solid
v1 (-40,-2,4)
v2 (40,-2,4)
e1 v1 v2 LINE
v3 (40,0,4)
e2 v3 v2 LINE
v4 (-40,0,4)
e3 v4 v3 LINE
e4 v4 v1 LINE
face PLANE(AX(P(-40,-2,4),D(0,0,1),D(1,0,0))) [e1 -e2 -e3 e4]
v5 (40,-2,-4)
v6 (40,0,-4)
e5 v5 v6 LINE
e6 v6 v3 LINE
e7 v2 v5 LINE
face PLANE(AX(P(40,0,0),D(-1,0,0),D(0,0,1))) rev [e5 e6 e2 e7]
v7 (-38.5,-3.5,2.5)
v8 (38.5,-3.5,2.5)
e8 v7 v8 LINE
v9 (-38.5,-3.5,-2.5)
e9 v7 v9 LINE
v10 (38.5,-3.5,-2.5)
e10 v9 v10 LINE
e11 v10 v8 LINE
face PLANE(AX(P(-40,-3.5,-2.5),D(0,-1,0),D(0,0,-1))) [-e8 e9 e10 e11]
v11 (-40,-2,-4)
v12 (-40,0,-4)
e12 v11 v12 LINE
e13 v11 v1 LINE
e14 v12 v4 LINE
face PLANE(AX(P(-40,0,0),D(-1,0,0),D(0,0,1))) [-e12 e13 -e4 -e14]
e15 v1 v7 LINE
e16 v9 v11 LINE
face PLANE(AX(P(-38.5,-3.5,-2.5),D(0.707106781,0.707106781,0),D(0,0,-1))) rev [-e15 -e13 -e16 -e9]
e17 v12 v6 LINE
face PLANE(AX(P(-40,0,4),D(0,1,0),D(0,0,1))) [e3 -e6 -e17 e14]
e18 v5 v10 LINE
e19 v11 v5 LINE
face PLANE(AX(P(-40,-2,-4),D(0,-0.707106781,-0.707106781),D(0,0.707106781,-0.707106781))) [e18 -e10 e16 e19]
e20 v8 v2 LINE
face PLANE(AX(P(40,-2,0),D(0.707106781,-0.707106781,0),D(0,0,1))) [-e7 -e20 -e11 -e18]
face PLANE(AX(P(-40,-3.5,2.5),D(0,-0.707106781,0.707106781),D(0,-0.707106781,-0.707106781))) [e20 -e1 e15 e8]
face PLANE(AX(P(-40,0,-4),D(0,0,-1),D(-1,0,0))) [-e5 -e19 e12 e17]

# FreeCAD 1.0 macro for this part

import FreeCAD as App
import Part
import Sketcher
Q = App.Units.Quantity


def edges_at(feature, points):
    """Names of the edges that pass closest to the given points."""
    edges = feature.Shape.Edges
    near = lambda p: min(range(len(edges)), key=lambda i: edges[i].distToShape(Part.Vertex(*p))[0])
    return sorted({f"Edge{near(p) + 1}" for p in points})

doc = App.newDocument("Part")
params = doc.addObject("Spreadsheet::Sheet", "Params")
for row, (alias, value) in enumerate([
    ("sketch1_width", "2 mm"),
    ("sketch1_height", "8 mm"),
    ("sketch1_height2", "5 mm"),
    ("pad1_length", "40 mm"),
    ("pad1_length2", "40 mm"),
    ("chamfer_size", "1.5 mm"),
], start=1):
    params.set(f"A{row}", alias)
    params.set(f"B{row}", "=" + value)
    params.setAlias(f"B{row}", alias)

body = doc.addObject("PartDesign::Body", "Body")

sketch1 = body.newObject("Sketcher::SketchObject", "Sketch")
sketch1.AttachmentSupport = (doc.getObject("YZ_Plane"), [""])
sketch1.MapMode = "FlatFace"
sketch1.addGeometry([
    Part.LineSegment(App.Vector(0, -4, 0), App.Vector(0, 4, 0)),
    Part.LineSegment(App.Vector(0, 4, 0), App.Vector(-2, 4, 0)),
    Part.LineSegment(App.Vector(-2, 4, 0), App.Vector(-3.5, 2.5, 0)),
    Part.LineSegment(App.Vector(-3.5, 2.5, 0), App.Vector(-3.5, -2.5, 0)),
    Part.LineSegment(App.Vector(-3.5, -2.5, 0), App.Vector(-2, -4, 0)),
    Part.LineSegment(App.Vector(-2, -4, 0), App.Vector(0, -4, 0)),
], False)
sketch1.addConstraint([
    Sketcher.Constraint("Coincident", 0, 2, 1, 1),
    Sketcher.Constraint("Coincident", 1, 2, 2, 1),
    Sketcher.Constraint("Coincident", 2, 2, 3, 1),
    Sketcher.Constraint("Coincident", 3, 2, 4, 1),
    Sketcher.Constraint("Coincident", 4, 2, 5, 1),
    Sketcher.Constraint("Coincident", 5, 2, 0, 1),
    Sketcher.Constraint("Vertical", 0),
    Sketcher.Constraint("Horizontal", 1),
    Sketcher.Constraint("Vertical", 3),
    Sketcher.Constraint("Horizontal", 5),
    Sketcher.Constraint("Symmetric", 0, 2, 5, 2, -1, 1),
    Sketcher.Constraint("Perpendicular", 2, 4),
    Sketcher.Constraint("Vertical", 1, 2, 4, 2),
    Sketcher.Constraint("Equal", 2, 4),
    Sketcher.Constraint("DistanceX", 1, 2, 1, 1, Q("2 mm")),
    Sketcher.Constraint("DistanceY", 0, 1, 0, 2, Q("8 mm")),
    Sketcher.Constraint("DistanceY", 3, 2, 3, 1, Q("5 mm")),
])
sketch1.setExpression("Constraints[14]", "Params.sketch1_width")
sketch1.setExpression("Constraints[15]", "Params.sketch1_height")
sketch1.setExpression("Constraints[16]", "Params.sketch1_height2")
pad1 = body.newObject("PartDesign::Pad", "Pad")
pad1.Profile = sketch1
pad1.Type = "TwoLengths"
pad1.setExpression("Length", "Params.pad1_length")
pad1.setExpression("Length2", "Params.pad1_length2")
doc.recompute()

chamfer = body.newObject("PartDesign::Chamfer", "Chamfer")
chamfer.Base = (pad1, edges_at(pad1, [(40, -3.5, 0), (-40, -3.5, 0)]))
chamfer.setExpression("Size", "Params.chamfer_size")

doc.recompute()
